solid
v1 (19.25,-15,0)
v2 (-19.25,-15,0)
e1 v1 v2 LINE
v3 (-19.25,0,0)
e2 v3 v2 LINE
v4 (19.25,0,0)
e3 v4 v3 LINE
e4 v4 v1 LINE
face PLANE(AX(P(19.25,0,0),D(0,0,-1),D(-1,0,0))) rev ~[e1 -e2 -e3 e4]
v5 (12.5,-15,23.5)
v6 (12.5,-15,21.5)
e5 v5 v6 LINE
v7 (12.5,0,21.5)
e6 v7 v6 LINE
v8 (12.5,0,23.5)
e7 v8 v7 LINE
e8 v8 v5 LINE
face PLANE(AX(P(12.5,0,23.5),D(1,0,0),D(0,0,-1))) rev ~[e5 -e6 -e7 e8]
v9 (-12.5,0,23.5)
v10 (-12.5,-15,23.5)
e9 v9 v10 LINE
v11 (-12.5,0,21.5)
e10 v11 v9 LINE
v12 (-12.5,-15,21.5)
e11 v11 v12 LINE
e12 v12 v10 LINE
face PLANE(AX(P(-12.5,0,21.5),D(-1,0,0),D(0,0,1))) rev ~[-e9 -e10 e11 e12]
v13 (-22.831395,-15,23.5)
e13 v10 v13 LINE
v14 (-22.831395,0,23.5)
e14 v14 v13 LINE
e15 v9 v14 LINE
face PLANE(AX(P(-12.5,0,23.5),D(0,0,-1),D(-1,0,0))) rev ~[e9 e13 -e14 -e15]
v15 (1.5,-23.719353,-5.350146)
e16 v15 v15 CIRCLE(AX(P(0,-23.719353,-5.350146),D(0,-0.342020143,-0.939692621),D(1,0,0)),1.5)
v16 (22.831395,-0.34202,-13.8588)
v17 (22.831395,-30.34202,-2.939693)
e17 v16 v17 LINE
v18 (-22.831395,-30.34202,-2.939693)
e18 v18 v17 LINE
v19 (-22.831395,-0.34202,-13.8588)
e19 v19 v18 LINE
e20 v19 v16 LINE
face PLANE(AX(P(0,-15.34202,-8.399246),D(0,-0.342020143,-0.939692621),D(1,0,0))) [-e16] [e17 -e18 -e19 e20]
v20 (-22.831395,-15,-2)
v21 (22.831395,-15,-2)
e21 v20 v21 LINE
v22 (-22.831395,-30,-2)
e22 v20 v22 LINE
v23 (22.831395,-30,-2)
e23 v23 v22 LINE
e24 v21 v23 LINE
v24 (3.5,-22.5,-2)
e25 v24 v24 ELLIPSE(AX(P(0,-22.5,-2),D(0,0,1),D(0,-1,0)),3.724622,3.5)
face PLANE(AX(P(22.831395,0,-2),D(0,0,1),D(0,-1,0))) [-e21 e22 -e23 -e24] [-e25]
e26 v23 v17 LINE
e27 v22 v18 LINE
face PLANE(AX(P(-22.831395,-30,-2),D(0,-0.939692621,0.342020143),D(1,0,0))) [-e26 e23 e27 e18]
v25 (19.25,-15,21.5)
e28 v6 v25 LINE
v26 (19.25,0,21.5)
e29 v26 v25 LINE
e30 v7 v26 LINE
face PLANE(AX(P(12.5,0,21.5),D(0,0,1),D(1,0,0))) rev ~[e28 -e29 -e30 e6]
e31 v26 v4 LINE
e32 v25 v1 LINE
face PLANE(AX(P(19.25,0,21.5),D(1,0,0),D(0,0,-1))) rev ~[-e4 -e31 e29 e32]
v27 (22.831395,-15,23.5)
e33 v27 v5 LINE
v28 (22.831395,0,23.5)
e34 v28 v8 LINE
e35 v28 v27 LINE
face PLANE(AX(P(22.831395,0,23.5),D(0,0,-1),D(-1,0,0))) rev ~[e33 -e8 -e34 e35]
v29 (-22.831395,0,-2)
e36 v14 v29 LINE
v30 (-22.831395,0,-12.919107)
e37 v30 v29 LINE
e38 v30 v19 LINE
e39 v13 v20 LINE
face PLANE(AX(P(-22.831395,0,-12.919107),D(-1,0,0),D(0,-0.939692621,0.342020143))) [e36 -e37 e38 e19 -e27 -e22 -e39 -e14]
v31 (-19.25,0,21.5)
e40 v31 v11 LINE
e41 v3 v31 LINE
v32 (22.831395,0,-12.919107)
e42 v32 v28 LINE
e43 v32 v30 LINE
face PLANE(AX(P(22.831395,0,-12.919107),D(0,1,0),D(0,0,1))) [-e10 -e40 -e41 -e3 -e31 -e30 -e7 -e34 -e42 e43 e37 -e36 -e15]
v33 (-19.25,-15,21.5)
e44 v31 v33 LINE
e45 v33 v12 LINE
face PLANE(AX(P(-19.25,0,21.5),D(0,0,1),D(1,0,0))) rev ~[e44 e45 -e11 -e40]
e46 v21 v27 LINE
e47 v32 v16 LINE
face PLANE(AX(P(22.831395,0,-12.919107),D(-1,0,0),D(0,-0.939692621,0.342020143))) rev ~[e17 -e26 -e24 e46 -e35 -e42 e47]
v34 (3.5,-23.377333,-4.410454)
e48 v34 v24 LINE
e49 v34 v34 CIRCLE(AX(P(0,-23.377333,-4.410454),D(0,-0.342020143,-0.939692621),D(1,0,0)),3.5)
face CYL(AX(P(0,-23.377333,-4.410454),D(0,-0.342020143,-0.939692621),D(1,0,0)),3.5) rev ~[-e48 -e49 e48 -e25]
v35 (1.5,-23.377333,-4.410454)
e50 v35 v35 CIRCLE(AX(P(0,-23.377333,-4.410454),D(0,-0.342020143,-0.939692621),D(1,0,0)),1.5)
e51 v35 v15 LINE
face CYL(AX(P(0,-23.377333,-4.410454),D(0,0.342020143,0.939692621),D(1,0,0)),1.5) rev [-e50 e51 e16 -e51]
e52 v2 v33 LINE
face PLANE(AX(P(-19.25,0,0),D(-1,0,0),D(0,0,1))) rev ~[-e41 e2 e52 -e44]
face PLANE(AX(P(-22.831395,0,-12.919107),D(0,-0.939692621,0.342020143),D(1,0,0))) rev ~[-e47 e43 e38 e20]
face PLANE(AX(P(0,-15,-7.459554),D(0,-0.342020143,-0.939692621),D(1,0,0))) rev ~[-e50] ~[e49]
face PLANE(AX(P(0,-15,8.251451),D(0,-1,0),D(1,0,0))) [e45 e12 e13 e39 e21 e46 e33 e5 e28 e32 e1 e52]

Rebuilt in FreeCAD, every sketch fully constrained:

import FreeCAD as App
import Part
import Sketcher

V = App.Vector
Q = App.Units.Quantity


def add_polygon(sketch, points):
    """Adds a closed chain of lines whose ends are joined by coincident constraints."""
    first, n = sketch.GeometryCount, len(points)
    for a, b in zip(points, points[1:] + points[:1]):
        sketch.addGeometry(Part.LineSegment(App.Vector(*a, 0), App.Vector(*b, 0)), False)
    for i in range(n):
        sketch.addConstraint(Sketcher.Constraint("Coincident", first + i, 2, first + (i + 1) % n, 1))

doc = App.newDocument("Part")
body = doc.addObject("PartDesign::Body", "Body")

sketch1 = body.newObject("Sketcher::SketchObject", "Sketch")
sketch1.AttachmentSupport = (doc.getObject("XZ_Plane"), [""])
sketch1.MapMode = "FlatFace"
add_polygon(sketch1, [(19.2, 0), (-19.2, 0), (-19.2, 21.5), (-12.5, 21.5), (-12.5, 23.5), (-22.8, 23.5), (-22.8, -2), (22.8, -2), (22.8, 23.5), (12.5, 23.5), (12.5, 21.5), (19.2, 21.5)])
sketch1.addConstraint([
    Sketcher.Constraint("Horizontal", 0),
    Sketcher.Constraint("Vertical", 1),
    Sketcher.Constraint("Horizontal", 2),
    Sketcher.Constraint("Vertical", 3),
    Sketcher.Constraint("Horizontal", 4),
    Sketcher.Constraint("Vertical", 5),
    Sketcher.Constraint("Horizontal", 6),
    Sketcher.Constraint("Vertical", 7),
    Sketcher.Constraint("Horizontal", 8),
    Sketcher.Constraint("Vertical", 9),
    Sketcher.Constraint("Horizontal", 10),
    Sketcher.Constraint("Vertical", 11),
    Sketcher.Constraint("Symmetric", 0, 2, 11, 2, -1, 1),
    Sketcher.Constraint("Symmetric", 4, 2, 7, 2, -2),
    Sketcher.Constraint("Symmetric", 2, 2, 9, 2, -2),
    Sketcher.Constraint("DistanceY", 3, 1, 3, 2, Q("2 mm")),
    Sketcher.Constraint("DistanceX", 0, 2, 0, 1, Q("38.5 mm")),
    Sketcher.Constraint("DistanceY", 1, 1, 1, 2, Q("21.5 mm")),
    Sketcher.Constraint("DistanceY", 5, 2, 5, 1, Q("25.5 mm")),
    Sketcher.Constraint("DistanceX", 3, 2, 8, 2, Q("25 mm")),
    Sketcher.Constraint("DistanceX", 6, 1, 6, 2, Q("45.662791 mm")),
])
pad1 = body.newObject("PartDesign::Pad", "Pad")
pad1.Profile = sketch1
pad1.Length = 15

sketch2 = body.newObject("Sketcher::SketchObject", "Sketch001")
sketch2.AttachmentSupport = (doc.getObject("YZ_Plane"), [""])
sketch2.MapMode = "FlatFace"
sketch2.AttachmentOffset = App.Placement(V(0, 0, 22.831395), App.Rotation())
add_polygon(sketch2, [(0, -2), (-30, -2), (0, -13)])
sketch2.addConstraint([
    Sketcher.Constraint("Horizontal", 0),
    Sketcher.Constraint("Vertical", 2),
    Sketcher.Constraint("PointOnObject", 1, 2, -2),
    Sketcher.Constraint("DistanceX", 0, 2, 0, 1, Q("30 mm")),
    Sketcher.Constraint("Angle", 1, Q("-20 deg")),
    Sketcher.Constraint("DistanceY", 0, 2, -1, 1, Q("2 mm")),
])
pad2 = body.newObject("PartDesign::Pad", "Pad001")
pad2.Profile = sketch2
pad2.Length = 45.662791
pad2.Reversed = True

sketch3 = body.newObject("Sketcher::SketchObject", "Sketch002")
sketch3.Placement = App.Placement(V(0, -4.152121, -11.407859), App.Rotation(V(1, 0, 0), V(0, -0.939692621, 0.342020143), V(0, -0.342020143, -0.939692621), "ZXY"))
sketch3.addGeometry(Part.Circle(V(0, 20.5, 0), V(0, 0, 1), 3.5), False)
sketch3.addConstraint([
    Sketcher.Constraint("PointOnObject", 0, 3, -2),
    Sketcher.Constraint("Diameter", 0, Q("7 mm")),
    Sketcher.Constraint("DistanceY", -1, 1, 0, 3, Q("20.459044 mm")),
])
pocket1 = body.newObject("PartDesign::Pocket", "Pocket")
pocket1.Profile = sketch3
pocket1.Type = "ThroughAll"

sketch4 = body.newObject("Sketcher::SketchObject", "Sketch003")
sketch4.Placement = App.Placement(V(0, -4.152121, -11.407859), App.Rotation(V(1, 0, 0), V(0, -0.939692621, 0.342020143), V(0, -0.342020143, -0.939692621), "ZXY"))
add_polygon(sketch4, [(-22.8, 27.5), (-22.8, -4.4), (22.8, -4.4), (22.8, 27.5)])
sketch4.addGeometry(Part.Circle(V(0, 20.5, 0), V(0, 0, 1), 1.5), False)
sketch4.addConstraint([
    Sketcher.Constraint("Vertical", 0),
    Sketcher.Constraint("Horizontal", 1),
    Sketcher.Constraint("Vertical", 2),
    Sketcher.Constraint("Horizontal", 3),
    Sketcher.Constraint("PointOnObject", 4, 3, -2),
    Sketcher.Constraint("Diameter", 4, Q("3 mm")),
    Sketcher.Constraint("DistanceX", 1, 1, 1, 2, Q("45.662791 mm")),
    Sketcher.Constraint("DistanceY", 0, 2, 0, 1, Q("31.925333 mm")),
    Sketcher.Constraint("DistanceY", -1, 1, 2, 2, Q("27.506738 mm")),
    Sketcher.Constraint("DistanceY", 0, 2, 4, 3, Q("24.877639 mm")),
    Sketcher.Constraint("DistanceX", 0, 2, -1, 1, Q("22.831395 mm")),
])
pad3 = body.newObject("PartDesign::Pad", "Pad002")
pad3.Profile = sketch4
pad3.Length = 1

doc.recompute()
